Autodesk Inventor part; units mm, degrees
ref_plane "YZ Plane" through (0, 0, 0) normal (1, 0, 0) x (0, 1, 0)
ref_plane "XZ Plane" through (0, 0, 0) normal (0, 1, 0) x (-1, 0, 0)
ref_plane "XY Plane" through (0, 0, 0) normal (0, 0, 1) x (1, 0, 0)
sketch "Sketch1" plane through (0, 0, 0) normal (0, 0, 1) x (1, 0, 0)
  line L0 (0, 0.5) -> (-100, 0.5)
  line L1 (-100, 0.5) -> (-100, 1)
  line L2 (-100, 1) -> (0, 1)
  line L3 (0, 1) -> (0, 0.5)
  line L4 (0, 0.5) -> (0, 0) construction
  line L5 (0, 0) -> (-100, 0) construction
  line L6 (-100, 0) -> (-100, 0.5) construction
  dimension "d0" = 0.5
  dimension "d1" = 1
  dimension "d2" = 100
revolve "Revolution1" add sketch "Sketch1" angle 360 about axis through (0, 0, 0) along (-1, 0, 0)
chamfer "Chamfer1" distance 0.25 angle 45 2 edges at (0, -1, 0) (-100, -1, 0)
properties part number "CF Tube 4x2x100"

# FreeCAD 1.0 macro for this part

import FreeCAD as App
import Part
import Sketcher
from FreeCAD import Vector
Q = App.Units.Quantity


def edges_at(feature, points):
    """Names of the edges that pass closest to the given points."""
    edges = feature.Shape.Edges
    near = lambda p: min(range(len(edges)), key=lambda i: edges[i].distToShape(Part.Vertex(*p))[0])
    return sorted({f"Edge{near(p) + 1}" for p in points})

doc = App.newDocument("Part")
body = doc.addObject("PartDesign::Body", "Body")

# Sketch on XY plane
sketch1 = body.newObject("Sketcher::SketchObject", "Sketch")
sketch1.AttachmentSupport = (doc.getObject("XY_Plane"), [""])
sketch1.MapMode = "FlatFace"
sketch1.addGeometry(Part.LineSegment(Vector(-100, 0.5, 0), Vector(0, 0.5, 0)), False)
sketch1.addGeometry(Part.LineSegment(Vector(0, 0.5, 0), Vector(0, 1, 0)), False)
sketch1.addGeometry(Part.LineSegment(Vector(0, 1, 0), Vector(-100, 1, 0)), False)
sketch1.addGeometry(Part.LineSegment(Vector(-100, 1, 0), Vector(-100, 0.5, 0)), False)
sketch1.addConstraint(Sketcher.Constraint("Coincident", 0, 2, 1, 1))
sketch1.addConstraint(Sketcher.Constraint("Coincident", 1, 2, 2, 1))
sketch1.addConstraint(Sketcher.Constraint("Coincident", 2, 2, 3, 1))
sketch1.addConstraint(Sketcher.Constraint("Coincident", 3, 2, 0, 1))
sketch1.addConstraint(Sketcher.Constraint("Horizontal", 0))
sketch1.addConstraint(Sketcher.Constraint("Vertical", 1))
sketch1.addConstraint(Sketcher.Constraint("Horizontal", 2))
sketch1.addConstraint(Sketcher.Constraint("Vertical", 3))
sketch1.addConstraint(Sketcher.Constraint("PointOnObject", 0, 2, -2))
sketch1.addConstraint(Sketcher.Constraint("DistanceX", 0, 1, 0, 2, Q("100 mm")))
sketch1.addConstraint(Sketcher.Constraint("DistanceY", 1, 1, 1, 2, Q("0.5 mm")))
sketch1.addConstraint(Sketcher.Constraint("DistanceY", -1, 1, 1, 2, Q("1 mm")))
revolution = body.newObject("PartDesign::Revolution", "Revolution")
revolution.Profile = sketch1
revolution.ReferenceAxis = (sketch1, ["H_Axis"])
revolution.Angle = 360
doc.recompute()

chamfer = body.newObject("PartDesign::Chamfer", "Chamfer")
chamfer.Base = (revolution, edges_at(revolution, [(0, -1, 0), (-100, -1, 0)]))
chamfer.Size = 0.25

doc.recompute()
